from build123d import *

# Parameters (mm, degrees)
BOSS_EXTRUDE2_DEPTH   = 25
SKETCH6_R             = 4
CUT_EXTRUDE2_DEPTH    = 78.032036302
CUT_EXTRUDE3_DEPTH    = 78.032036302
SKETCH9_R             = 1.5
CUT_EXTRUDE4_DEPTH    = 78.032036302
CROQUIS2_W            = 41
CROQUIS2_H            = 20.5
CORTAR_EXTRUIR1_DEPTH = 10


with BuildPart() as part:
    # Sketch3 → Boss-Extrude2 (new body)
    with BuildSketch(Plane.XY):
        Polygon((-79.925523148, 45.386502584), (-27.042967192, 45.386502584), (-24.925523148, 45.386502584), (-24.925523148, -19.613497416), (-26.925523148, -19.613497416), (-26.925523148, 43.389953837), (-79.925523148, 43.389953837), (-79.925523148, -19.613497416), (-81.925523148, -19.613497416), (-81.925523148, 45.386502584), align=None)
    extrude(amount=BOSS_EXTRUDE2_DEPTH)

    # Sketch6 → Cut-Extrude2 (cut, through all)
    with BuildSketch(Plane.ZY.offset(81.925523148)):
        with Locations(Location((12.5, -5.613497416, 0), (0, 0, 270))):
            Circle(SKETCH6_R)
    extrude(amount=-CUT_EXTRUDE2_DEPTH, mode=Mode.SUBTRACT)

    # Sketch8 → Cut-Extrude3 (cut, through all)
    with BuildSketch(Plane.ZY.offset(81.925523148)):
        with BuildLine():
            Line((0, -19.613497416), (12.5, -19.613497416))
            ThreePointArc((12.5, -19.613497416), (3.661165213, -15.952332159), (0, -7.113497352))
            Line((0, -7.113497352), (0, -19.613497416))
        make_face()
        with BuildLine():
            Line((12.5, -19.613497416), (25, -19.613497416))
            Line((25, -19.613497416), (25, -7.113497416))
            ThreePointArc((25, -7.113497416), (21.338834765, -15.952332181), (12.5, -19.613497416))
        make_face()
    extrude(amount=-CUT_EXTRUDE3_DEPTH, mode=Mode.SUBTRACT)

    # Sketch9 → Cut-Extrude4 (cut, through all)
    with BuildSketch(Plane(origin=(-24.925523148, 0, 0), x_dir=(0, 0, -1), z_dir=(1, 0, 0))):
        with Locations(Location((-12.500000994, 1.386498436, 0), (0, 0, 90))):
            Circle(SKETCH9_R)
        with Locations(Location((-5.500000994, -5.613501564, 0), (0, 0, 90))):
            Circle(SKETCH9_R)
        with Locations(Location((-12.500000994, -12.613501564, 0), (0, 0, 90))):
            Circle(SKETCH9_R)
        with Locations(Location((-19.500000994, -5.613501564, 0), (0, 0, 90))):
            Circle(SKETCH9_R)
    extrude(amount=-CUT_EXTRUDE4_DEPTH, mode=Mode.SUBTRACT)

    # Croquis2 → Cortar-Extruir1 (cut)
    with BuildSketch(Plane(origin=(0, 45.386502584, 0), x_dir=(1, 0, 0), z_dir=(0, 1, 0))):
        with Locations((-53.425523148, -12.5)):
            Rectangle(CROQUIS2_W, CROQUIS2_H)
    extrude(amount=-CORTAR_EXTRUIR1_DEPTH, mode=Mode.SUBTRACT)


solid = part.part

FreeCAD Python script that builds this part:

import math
import FreeCAD as App
import Part
import Sketcher
from FreeCAD import Vector

doc = App.newDocument("Part")
body = doc.addObject("PartDesign::Body", "Body")

# Sketch on XY plane
sketch1 = body.newObject("Sketcher::SketchObject", "Sketch")
sketch1.AttachmentSupport = (doc.getObject("XY_Plane"), [""])
sketch1.MapMode = "FlatFace"
sketch1.addGeometry([
    Part.LineSegment(Vector(-24.9, 45.4, 0), Vector(-81.9, 45.4, 0)),  # 0
    Part.LineSegment(Vector(-81.9, 45.4, 0), Vector(-81.9, -19.6, 0)),  # 1
    Part.LineSegment(Vector(-81.9, -19.6, 0), Vector(-79.9, -19.6, 0)),  # 2
    Part.LineSegment(Vector(-79.9, -19.6, 0), Vector(-79.9, 43.4, 0)),  # 3
    Part.LineSegment(Vector(-79.9, 43.4, 0), Vector(-26.9, 43.4, 0)),  # 4
    Part.LineSegment(Vector(-26.9, 43.4, 0), Vector(-26.9, -19.6, 0)),  # 5
    Part.LineSegment(Vector(-26.9, -19.6, 0), Vector(-24.9, -19.6, 0)),  # 6
    Part.LineSegment(Vector(-24.9, -19.6, 0), Vector(-24.9, 45.4, 0)),  # 7
], False)
sketch1.addConstraint([
    Sketcher.Constraint("Coincident", 0, 2, 1, 1),
    Sketcher.Constraint("Coincident", 1, 2, 2, 1),
    Sketcher.Constraint("Coincident", 2, 2, 3, 1),
    Sketcher.Constraint("Coincident", 3, 2, 4, 1),
    Sketcher.Constraint("Coincident", 4, 2, 5, 1),
    Sketcher.Constraint("Coincident", 5, 2, 6, 1),
    Sketcher.Constraint("Coincident", 6, 2, 7, 1),
    Sketcher.Constraint("Coincident", 7, 2, 0, 1),
    Sketcher.Constraint("Horizontal", 0),
    Sketcher.Constraint("Vertical", 1),
    Sketcher.Constraint("Horizontal", 2),
    Sketcher.Constraint("Vertical", 3),
    Sketcher.Constraint("Horizontal", 4),
    Sketcher.Constraint("Vertical", 5),
    Sketcher.Constraint("Horizontal", 6),
    Sketcher.Constraint("Vertical", 7),
    Sketcher.Constraint("Horizontal", 2, 2, 5, 2),
    Sketcher.Constraint("Equal", 2, 6),
    Sketcher.Constraint("DistanceX", 0, 2, 0, 1, 57.0),
    Sketcher.Constraint("DistanceX", 2, 1, 2, 2, 2.0),
    Sketcher.Constraint("DistanceY", 1, 2, 1, 1, 65.0),
    Sketcher.Constraint("DistanceY", 3, 1, 3, 2, 63.003451),
    Sketcher.Constraint("DistanceX", 0, 2, -1, 1, 81.925523),
    Sketcher.Constraint("DistanceY", -1, 1, 0, 2, 45.386503),
])
pad1 = body.newObject("PartDesign::Pad", "Pad")
pad1.Profile = sketch1
pad1.Length = 25

# Sketch on YZ plane
sketch2 = body.newObject("Sketcher::SketchObject", "Sketch001")
sketch2.AttachmentSupport = (doc.getObject("YZ_Plane"), [""])
sketch2.MapMode = "FlatFace"
sketch2.AttachmentOffset = App.Placement(Vector(0, 0, -81.925523), App.Rotation())
sketch2.addGeometry(Part.Circle(Vector(-5.6, 12.5, 0), Vector(0, 0, 1), 4), False)
sketch2.addConstraint([
    Sketcher.Constraint("Diameter", 0, 8.0),
    Sketcher.Constraint("DistanceY", -1, 1, 0, 3, 12.5),
    Sketcher.Constraint("DistanceX", 0, 3, -1, 1, 5.613497),
])
pocket1 = body.newObject("PartDesign::Pocket", "Pocket")
pocket1.Profile = sketch2
pocket1.Type = "ThroughAll"
pocket1.Reversed = True

# Sketch on YZ plane
sketch3 = body.newObject("Sketcher::SketchObject", "Sketch002")
sketch3.AttachmentSupport = (doc.getObject("YZ_Plane"), [""])
sketch3.MapMode = "FlatFace"
sketch3.AttachmentOffset = App.Placement(Vector(0, 0, -81.925523), App.Rotation())
sketch3.addGeometry([
    Part.LineSegment(Vector(-20, 0, 0), Vector(-20, 12, 0)),  # 0
    Part.ArcOfCircle(Part.Circle(Vector(-7, 12, 0), Vector(0, 0, 1), 12), math.radians(180), math.radians(270)),  # 1
    Part.LineSegment(Vector(-7, 0, 0), Vector(-20, 0, 0)),  # 2
    Part.LineSegment(Vector(-20, 12, 0), Vector(-20, 25, 0)),  # 3
    Part.LineSegment(Vector(-20, 25, 0), Vector(-7, 25, 0)),  # 4
    Part.ArcOfCircle(Part.Circle(Vector(-7, 13, 0), Vector(0, 0, 1), 12), math.radians(90), math.radians(180)),  # 5
], False)
sketch3.addConstraint([
    Sketcher.Constraint("Tangent", 0, 2, 1, 1),
    Sketcher.Constraint("Tangent", 1, 2, 2, 1),
    Sketcher.Constraint("Coincident", 2, 2, 0, 1),
    Sketcher.Constraint("Coincident", 3, 2, 4, 1),
    Sketcher.Constraint("Tangent", 4, 2, 5, 1),
    Sketcher.Constraint("Tangent", 5, 2, 3, 1),
    Sketcher.Constraint("Vertical", 0),
    Sketcher.Constraint("Horizontal", 2),
    Sketcher.Constraint("Vertical", 3),
    Sketcher.Constraint("Horizontal", 4),
    Sketcher.Constraint("Coincident", 5, 3, 1, 3),
    Sketcher.Constraint("Equal", 1, 5),
    Sketcher.Constraint("PointOnObject", 1, 2, -1),
    Sketcher.Constraint("Radius", 1, 12.5),
    Sketcher.Constraint("DistanceX", 1, 3, -1, 1, 7.113497),
])
pocket2 = body.newObject("PartDesign::Pocket", "Pocket001")
pocket2.Profile = sketch3
pocket2.Type = "ThroughAll"
pocket2.Reversed = True

# Sketch on YZ plane
sketch4 = body.newObject("Sketcher::SketchObject", "Sketch003")
sketch4.AttachmentSupport = (doc.getObject("YZ_Plane"), [""])
sketch4.MapMode = "FlatFace"
sketch4.AttachmentOffset = App.Placement(Vector(0, 0, -24.925523), App.Rotation())
sketch4.addGeometry([
    Part.Circle(Vector(1.4, 12.5, 0), Vector(0, 0, 1), 1.5),
    Part.Circle(Vector(-5.6, 5.5, 0), Vector(0, 0, 1), 1.5),
    Part.Circle(Vector(-12.6, 12.5, 0), Vector(0, 0, 1), 1.5),
    Part.Circle(Vector(-5.6, 19.5, 0), Vector(0, 0, 1), 1.5),
], False)
sketch4.addConstraint([
    Sketcher.Constraint("Equal", 0, 1),
    Sketcher.Constraint("Equal", 1, 2),
    Sketcher.Constraint("Equal", 2, 3),
    Sketcher.Constraint("Horizontal", 0, 3, 2, 3),
    Sketcher.Constraint("Vertical", 1, 3, 3, 3),
    Sketcher.Constraint("Diameter", 0, 3.0),
    Sketcher.Constraint("DistanceX", 1, 3, 0, 3, 7.0),
    Sketcher.Constraint("DistanceY", 1, 3, 0, 3, 7.0),
    Sketcher.Constraint("DistanceX", 2, 3, 1, 3, 7.0),
    Sketcher.Constraint("DistanceY", 0, 3, 3, 3, 7.0),
    Sketcher.Constraint("DistanceY", -1, 1, 0, 3, 12.500001),
    Sketcher.Constraint("DistanceX", -1, 1, 0, 3, 1.386498),
])
pocket3 = body.newObject("PartDesign::Pocket", "Pocket002")
pocket3.Profile = sketch4
pocket3.Type = "ThroughAll"

# Sketch on XZ plane
sketch5 = body.newObject("Sketcher::SketchObject", "Sketch004")
sketch5.AttachmentSupport = (doc.getObject("XZ_Plane"), [""])
sketch5.MapMode = "FlatFace"
sketch5.AttachmentOffset = App.Placement(Vector(0, 0, -45.386503), App.Rotation())
sketch5.addGeometry([
    Part.LineSegment(Vector(-74, 2, 0), Vector(-74, 23, 0)),
    Part.LineSegment(Vector(-74, 23, 0), Vector(-33, 23, 0)),
    Part.LineSegment(Vector(-33, 23, 0), Vector(-33, 2, 0)),
    Part.LineSegment(Vector(-33, 2, 0), Vector(-74, 2, 0)),
], False)
sketch5.addConstraint([
    Sketcher.Constraint("Coincident", 0, 2, 1, 1),
    Sketcher.Constraint("Coincident", 1, 2, 2, 1),
    Sketcher.Constraint("Coincident", 2, 2, 3, 1),
    Sketcher.Constraint("Coincident", 3, 2, 0, 1),
    Sketcher.Constraint("Vertical", 0),
    Sketcher.Constraint("Horizontal", 1),
    Sketcher.Constraint("Vertical", 2),
    Sketcher.Constraint("Horizontal", 3),
    Sketcher.Constraint("DistanceX", 1, 1, 1, 2, 41.0),
    Sketcher.Constraint("DistanceY", 0, 1, 0, 2, 20.5),
    Sketcher.Constraint("DistanceY", -1, 1, 0, 2, 22.75),
    Sketcher.Constraint("DistanceX", 0, 2, -1, 1, 73.925523),
])
pocket4 = body.newObject("PartDesign::Pocket", "Pocket003")
pocket4.Profile = sketch5
pocket4.Length = 10
pocket4.Reversed = True

doc.recompute()
